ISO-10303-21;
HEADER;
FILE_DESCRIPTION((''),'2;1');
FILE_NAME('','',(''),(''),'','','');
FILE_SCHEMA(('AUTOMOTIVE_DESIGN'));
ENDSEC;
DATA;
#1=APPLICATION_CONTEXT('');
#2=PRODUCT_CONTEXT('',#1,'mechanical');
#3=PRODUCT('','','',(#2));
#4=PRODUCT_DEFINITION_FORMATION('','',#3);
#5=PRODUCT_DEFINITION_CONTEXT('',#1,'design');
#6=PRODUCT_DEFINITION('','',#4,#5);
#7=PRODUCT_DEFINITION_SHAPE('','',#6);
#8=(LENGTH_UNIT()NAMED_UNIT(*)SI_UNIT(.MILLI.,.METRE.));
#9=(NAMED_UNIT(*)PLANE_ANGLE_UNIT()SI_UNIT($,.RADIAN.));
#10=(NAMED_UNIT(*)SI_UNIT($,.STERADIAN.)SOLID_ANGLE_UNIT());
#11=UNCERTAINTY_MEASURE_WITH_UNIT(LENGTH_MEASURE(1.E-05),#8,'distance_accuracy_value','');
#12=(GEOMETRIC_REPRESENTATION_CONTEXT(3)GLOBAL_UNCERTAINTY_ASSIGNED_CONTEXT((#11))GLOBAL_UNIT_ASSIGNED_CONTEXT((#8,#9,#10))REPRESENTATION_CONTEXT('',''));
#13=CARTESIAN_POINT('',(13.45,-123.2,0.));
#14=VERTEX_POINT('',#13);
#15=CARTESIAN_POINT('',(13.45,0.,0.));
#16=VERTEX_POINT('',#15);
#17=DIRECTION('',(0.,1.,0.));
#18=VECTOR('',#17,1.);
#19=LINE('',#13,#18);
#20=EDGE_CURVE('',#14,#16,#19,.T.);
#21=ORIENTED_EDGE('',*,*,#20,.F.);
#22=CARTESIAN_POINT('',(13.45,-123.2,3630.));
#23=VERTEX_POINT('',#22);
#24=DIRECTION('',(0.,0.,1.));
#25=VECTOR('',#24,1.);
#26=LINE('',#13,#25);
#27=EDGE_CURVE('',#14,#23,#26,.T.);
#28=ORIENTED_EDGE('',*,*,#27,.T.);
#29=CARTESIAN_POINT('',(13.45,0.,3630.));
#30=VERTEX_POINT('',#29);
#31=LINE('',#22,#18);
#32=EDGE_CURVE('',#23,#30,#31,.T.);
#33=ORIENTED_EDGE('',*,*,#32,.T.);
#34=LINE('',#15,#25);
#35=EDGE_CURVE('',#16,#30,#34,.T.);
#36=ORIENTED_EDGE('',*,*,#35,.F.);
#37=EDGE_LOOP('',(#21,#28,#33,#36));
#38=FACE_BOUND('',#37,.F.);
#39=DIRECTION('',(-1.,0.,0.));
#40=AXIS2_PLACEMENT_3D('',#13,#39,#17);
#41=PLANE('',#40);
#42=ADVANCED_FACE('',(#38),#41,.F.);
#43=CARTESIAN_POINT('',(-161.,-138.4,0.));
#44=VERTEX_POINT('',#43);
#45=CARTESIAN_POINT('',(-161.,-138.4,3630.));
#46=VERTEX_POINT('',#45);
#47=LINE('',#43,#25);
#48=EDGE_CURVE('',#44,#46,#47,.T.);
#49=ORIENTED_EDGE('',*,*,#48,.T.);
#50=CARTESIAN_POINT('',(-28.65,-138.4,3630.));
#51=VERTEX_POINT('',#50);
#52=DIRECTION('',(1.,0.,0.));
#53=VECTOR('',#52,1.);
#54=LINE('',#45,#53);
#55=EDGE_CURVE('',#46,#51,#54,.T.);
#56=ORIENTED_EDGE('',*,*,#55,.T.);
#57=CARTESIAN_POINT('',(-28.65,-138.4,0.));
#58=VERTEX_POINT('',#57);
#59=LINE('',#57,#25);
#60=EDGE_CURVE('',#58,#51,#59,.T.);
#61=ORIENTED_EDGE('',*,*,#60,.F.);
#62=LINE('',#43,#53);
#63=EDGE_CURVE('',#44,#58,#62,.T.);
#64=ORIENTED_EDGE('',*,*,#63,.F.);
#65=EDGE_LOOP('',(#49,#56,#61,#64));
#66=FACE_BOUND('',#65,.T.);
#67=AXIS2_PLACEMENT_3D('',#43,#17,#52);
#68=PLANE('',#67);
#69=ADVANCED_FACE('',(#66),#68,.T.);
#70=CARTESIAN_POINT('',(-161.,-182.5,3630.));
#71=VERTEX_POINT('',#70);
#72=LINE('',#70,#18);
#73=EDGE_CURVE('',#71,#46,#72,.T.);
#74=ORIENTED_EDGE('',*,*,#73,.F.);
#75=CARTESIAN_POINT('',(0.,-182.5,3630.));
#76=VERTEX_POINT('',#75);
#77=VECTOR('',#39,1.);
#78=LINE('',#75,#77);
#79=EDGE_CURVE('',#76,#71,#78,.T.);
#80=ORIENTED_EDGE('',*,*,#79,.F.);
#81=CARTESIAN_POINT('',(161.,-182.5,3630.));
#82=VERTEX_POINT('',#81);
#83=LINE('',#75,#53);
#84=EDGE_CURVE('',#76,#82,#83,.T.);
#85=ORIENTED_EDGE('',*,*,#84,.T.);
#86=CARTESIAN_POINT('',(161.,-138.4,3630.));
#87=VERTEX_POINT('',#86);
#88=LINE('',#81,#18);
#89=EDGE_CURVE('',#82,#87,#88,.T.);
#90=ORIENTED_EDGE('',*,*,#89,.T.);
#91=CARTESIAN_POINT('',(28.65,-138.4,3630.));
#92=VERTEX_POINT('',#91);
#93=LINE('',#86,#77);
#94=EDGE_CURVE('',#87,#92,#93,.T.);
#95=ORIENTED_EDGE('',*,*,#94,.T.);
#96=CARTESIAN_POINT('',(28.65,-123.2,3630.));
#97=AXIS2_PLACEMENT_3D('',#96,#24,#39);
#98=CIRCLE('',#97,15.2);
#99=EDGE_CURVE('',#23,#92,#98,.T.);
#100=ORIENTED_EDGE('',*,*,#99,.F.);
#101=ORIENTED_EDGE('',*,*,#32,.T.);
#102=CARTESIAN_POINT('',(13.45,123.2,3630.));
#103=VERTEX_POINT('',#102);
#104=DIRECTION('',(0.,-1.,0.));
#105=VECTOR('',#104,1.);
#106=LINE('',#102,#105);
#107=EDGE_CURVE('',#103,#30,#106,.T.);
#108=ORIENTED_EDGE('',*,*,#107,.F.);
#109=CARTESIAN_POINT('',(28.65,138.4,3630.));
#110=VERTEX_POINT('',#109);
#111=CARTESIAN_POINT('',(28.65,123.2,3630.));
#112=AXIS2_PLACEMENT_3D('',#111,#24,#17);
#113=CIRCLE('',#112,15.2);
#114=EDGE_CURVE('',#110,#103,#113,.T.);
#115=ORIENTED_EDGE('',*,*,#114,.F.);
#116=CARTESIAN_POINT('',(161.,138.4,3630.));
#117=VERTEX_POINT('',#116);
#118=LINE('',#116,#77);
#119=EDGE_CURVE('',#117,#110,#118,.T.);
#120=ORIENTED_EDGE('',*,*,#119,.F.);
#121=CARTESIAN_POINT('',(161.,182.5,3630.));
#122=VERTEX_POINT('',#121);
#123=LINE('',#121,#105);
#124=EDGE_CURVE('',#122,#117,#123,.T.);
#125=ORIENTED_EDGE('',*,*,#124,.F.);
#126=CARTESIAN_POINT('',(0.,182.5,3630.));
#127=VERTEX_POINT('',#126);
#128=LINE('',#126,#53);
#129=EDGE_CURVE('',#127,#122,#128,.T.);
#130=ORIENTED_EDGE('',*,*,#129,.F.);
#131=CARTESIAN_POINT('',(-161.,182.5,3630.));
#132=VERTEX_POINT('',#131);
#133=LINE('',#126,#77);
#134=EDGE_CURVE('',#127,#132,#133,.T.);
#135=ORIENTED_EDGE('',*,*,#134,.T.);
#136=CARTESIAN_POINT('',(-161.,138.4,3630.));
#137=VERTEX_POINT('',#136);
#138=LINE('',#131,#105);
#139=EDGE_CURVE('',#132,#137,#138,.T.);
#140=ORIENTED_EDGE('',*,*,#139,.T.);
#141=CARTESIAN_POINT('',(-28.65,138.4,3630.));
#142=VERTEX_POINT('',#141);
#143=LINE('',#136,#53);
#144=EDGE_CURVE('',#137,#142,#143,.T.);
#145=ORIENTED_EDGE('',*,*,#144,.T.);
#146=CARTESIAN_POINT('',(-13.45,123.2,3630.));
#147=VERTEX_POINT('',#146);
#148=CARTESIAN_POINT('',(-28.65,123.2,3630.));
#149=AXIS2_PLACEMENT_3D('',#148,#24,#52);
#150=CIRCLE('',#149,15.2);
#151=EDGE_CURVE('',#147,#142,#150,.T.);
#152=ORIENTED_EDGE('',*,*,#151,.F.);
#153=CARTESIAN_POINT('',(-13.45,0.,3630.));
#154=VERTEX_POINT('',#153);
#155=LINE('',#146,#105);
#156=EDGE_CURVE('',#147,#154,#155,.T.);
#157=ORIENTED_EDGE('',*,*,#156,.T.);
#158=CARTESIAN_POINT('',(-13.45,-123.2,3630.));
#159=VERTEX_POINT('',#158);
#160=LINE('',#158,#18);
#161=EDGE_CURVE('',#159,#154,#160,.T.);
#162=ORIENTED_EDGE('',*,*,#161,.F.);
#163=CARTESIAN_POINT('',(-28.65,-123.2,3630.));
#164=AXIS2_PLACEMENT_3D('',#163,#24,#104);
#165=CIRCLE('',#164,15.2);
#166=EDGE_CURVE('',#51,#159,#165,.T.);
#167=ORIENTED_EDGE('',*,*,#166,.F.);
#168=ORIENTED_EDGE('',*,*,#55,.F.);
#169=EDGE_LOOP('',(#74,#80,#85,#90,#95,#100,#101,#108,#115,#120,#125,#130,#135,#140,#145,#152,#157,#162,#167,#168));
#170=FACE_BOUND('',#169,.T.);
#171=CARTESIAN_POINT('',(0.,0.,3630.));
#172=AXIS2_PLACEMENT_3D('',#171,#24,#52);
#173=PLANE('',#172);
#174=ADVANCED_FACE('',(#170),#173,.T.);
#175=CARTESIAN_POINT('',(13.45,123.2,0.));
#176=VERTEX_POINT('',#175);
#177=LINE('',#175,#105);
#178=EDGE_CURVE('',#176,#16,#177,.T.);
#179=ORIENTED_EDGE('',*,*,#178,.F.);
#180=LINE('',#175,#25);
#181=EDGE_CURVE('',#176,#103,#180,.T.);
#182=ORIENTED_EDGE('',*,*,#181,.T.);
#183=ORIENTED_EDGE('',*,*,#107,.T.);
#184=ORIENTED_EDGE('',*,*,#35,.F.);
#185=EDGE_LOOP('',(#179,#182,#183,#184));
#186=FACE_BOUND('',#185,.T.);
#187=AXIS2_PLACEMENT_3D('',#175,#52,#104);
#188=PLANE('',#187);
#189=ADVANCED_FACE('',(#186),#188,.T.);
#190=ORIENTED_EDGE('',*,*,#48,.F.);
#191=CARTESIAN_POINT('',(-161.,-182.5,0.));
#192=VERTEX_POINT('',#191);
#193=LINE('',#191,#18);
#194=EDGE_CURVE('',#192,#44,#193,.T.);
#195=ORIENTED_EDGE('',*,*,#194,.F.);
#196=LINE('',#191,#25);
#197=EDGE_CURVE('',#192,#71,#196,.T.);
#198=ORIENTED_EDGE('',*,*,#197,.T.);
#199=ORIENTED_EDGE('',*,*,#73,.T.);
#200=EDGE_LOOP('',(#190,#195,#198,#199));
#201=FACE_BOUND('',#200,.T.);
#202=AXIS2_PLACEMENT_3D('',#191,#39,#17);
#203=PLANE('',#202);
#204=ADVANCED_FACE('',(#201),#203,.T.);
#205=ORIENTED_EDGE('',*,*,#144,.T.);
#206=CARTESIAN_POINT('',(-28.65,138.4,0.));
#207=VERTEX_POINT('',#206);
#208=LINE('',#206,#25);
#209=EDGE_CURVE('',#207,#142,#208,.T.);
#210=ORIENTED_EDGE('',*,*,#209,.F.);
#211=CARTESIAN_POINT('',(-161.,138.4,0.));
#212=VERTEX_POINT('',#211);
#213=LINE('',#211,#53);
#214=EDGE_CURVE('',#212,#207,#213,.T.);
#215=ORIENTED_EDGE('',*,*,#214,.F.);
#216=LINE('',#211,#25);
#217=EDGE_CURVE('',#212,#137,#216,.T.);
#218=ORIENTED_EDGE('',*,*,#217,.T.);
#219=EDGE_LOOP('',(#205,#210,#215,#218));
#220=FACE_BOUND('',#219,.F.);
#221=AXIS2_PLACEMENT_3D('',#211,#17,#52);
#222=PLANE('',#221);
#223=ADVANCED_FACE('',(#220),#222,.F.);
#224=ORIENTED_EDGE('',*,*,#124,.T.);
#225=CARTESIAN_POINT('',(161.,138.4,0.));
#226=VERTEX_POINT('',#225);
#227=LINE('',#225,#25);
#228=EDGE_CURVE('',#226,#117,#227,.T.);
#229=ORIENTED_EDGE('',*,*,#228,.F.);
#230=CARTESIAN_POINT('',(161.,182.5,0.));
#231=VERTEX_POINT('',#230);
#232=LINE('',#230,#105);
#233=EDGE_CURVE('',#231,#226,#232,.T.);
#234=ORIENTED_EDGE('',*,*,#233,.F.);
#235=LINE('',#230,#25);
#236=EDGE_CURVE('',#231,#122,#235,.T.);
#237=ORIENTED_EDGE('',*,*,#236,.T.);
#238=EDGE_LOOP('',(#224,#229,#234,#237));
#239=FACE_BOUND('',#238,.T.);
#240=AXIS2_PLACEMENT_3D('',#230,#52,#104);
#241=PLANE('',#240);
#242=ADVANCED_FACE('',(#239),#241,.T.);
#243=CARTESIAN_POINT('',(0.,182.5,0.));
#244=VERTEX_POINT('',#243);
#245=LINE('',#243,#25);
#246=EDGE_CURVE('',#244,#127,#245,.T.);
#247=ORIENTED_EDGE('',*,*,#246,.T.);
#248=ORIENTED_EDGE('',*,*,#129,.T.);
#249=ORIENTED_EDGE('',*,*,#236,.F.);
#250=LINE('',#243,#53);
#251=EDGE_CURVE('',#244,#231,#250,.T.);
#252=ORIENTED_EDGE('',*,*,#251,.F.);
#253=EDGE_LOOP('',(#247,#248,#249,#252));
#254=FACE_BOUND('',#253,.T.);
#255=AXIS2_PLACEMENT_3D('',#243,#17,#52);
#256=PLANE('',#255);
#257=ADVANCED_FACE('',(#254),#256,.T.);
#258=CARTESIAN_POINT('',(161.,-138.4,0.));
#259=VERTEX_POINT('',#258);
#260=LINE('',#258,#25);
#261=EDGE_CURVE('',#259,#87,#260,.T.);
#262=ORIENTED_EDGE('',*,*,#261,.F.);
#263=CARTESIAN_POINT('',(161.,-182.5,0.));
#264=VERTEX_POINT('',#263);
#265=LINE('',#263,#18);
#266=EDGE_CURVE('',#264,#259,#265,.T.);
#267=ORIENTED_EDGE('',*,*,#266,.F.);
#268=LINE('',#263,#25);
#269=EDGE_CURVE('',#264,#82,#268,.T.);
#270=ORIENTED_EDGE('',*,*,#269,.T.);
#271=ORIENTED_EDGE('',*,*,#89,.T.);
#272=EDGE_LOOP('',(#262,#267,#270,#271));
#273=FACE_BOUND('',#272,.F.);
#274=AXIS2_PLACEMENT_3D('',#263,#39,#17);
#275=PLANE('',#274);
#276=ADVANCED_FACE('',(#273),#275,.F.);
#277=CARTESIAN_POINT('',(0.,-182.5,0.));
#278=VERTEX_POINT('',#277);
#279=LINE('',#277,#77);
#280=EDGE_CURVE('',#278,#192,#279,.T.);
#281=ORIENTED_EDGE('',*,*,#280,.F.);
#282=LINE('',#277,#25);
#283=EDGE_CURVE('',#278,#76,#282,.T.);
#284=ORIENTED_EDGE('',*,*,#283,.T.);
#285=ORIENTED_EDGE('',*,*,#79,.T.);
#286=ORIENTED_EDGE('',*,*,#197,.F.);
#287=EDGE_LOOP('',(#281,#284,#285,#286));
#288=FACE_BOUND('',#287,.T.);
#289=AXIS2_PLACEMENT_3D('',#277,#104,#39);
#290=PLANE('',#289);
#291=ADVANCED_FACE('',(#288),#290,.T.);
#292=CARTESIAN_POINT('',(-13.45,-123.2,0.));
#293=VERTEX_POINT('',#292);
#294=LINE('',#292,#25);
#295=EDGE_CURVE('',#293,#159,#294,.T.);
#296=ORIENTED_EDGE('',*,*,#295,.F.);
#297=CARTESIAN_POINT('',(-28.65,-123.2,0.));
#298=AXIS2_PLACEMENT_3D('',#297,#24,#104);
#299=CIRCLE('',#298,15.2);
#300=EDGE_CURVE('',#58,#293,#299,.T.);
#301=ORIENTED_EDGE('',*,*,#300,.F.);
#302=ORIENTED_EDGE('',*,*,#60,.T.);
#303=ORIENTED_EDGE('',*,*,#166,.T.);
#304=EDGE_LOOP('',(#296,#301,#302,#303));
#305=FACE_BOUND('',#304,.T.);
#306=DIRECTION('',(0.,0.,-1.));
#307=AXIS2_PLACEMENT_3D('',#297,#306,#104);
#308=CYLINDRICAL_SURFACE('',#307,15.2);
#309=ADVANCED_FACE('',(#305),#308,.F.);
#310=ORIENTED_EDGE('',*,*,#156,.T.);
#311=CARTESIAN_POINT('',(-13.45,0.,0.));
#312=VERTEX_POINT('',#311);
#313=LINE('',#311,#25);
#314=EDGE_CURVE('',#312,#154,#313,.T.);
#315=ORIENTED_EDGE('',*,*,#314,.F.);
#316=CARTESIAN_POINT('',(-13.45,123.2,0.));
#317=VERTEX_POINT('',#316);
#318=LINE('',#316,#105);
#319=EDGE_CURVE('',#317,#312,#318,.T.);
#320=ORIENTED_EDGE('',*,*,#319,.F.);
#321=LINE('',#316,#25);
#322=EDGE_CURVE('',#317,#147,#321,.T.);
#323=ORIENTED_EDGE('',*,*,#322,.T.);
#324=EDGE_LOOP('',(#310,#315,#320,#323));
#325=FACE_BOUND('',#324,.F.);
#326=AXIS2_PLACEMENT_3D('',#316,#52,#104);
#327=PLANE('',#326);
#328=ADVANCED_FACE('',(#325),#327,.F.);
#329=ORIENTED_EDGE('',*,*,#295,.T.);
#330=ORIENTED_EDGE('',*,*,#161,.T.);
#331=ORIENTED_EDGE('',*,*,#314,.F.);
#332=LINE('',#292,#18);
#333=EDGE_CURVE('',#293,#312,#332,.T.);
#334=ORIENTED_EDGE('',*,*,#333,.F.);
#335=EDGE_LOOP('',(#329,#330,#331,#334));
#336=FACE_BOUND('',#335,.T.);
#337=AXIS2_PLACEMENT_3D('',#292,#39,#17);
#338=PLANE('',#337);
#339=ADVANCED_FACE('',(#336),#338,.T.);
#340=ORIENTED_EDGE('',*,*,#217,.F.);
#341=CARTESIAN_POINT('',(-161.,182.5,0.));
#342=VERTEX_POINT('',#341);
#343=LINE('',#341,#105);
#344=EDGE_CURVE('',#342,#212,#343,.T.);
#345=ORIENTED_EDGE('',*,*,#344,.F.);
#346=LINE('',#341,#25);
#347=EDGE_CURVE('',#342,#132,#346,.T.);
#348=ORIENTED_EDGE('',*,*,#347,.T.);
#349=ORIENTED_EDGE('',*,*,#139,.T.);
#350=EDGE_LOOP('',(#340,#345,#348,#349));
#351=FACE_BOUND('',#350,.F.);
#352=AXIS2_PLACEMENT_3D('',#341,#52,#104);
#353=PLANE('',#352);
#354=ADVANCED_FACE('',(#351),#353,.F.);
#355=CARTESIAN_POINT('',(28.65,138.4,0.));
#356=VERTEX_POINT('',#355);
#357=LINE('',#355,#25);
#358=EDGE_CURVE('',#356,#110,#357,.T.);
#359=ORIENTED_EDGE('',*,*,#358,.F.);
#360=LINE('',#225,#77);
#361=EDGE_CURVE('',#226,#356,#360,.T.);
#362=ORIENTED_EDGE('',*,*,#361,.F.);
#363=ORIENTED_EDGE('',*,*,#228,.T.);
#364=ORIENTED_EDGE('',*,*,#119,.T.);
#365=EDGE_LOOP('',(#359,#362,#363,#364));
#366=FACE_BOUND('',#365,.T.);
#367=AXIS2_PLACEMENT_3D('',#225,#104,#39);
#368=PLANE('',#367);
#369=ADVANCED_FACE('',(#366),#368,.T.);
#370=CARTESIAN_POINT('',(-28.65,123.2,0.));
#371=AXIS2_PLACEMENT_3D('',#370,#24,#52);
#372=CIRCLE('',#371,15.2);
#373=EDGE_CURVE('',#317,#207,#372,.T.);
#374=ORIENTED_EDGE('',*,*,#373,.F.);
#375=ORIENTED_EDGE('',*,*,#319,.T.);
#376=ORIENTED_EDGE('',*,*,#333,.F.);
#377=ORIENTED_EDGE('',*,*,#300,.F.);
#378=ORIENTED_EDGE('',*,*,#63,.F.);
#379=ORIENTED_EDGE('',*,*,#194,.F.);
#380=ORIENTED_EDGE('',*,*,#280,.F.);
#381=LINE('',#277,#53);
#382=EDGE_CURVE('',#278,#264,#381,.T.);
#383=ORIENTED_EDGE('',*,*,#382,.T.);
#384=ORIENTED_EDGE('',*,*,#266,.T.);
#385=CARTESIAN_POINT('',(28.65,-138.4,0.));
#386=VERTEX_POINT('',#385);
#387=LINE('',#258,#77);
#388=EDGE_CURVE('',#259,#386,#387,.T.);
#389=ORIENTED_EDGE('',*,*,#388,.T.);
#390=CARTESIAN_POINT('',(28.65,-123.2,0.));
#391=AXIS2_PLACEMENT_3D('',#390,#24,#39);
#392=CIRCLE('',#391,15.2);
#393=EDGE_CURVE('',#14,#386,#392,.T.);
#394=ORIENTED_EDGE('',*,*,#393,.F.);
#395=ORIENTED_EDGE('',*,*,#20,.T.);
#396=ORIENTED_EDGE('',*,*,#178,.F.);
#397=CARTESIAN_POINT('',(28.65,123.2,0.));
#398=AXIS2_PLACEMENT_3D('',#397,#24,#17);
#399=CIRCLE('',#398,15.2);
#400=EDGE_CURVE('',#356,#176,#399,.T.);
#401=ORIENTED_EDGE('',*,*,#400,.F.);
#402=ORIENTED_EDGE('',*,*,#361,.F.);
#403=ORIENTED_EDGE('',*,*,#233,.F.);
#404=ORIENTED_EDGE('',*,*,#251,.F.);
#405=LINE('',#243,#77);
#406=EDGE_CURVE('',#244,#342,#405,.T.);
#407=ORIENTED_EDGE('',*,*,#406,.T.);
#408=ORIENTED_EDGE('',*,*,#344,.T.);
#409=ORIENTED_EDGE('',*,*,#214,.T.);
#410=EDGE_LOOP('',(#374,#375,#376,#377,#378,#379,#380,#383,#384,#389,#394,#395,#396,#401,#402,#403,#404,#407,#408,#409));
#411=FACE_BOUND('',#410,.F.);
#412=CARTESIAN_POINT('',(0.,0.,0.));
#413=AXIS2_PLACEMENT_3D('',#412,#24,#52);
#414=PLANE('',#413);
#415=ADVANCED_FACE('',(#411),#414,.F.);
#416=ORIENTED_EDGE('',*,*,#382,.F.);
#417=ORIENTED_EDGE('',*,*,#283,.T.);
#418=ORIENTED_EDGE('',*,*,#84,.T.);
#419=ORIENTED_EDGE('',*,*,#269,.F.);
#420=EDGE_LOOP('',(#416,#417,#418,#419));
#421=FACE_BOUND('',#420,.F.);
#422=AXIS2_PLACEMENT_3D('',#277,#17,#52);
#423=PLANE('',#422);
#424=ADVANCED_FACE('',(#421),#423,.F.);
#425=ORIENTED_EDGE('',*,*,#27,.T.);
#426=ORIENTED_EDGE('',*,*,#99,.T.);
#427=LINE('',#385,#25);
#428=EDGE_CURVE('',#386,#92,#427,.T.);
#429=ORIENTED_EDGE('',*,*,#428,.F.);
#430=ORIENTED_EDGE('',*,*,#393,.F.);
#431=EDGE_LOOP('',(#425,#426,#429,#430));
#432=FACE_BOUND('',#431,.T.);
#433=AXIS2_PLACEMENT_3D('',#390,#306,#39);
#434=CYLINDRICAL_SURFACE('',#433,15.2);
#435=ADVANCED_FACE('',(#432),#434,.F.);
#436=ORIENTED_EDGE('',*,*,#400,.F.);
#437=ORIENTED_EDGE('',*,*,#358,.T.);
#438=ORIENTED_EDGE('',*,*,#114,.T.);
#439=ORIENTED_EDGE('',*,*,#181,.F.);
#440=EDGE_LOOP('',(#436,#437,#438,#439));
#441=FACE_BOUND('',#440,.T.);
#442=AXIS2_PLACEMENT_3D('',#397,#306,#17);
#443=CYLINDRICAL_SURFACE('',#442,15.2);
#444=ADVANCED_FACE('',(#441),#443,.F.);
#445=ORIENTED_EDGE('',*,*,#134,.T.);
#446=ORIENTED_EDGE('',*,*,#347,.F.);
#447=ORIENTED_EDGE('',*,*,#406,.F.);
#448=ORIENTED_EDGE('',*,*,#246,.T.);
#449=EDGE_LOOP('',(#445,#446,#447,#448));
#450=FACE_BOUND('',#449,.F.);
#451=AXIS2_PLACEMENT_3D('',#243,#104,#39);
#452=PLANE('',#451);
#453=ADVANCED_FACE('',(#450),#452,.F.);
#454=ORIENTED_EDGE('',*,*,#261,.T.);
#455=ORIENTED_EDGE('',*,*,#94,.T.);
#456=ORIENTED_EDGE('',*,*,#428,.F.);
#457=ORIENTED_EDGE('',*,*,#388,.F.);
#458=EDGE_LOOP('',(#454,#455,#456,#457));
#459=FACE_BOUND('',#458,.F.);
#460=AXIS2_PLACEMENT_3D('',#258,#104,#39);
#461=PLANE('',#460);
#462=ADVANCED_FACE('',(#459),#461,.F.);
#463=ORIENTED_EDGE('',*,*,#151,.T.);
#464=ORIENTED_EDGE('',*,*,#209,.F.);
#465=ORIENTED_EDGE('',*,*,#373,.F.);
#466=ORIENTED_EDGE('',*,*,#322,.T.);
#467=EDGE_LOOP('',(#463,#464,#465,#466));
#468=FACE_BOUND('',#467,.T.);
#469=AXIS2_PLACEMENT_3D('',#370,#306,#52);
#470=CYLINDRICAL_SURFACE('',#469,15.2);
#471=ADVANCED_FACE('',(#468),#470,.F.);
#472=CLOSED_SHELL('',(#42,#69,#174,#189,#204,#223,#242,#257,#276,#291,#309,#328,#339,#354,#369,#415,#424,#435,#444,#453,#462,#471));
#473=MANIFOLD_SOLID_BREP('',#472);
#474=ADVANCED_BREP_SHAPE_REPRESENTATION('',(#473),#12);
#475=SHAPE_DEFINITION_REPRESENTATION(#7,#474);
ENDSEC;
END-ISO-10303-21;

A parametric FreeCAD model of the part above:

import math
import FreeCAD as App
import Part
import Sketcher

V = App.Vector
Q = App.Units.Quantity

doc = App.newDocument("Part")
params = doc.addObject("Spreadsheet::Sheet", "Params")
for row, (alias, value) in enumerate([
    ("sketch1_radius", "15.2 mm"),
    ("sketch1_height", "44.1 mm"),
    ("pad1_length", "3630 mm"),
], start=1):
    params.set(f"A{row}", alias)
    params.set(f"B{row}", "=" + value)
    params.setAlias(f"B{row}", alias)

body = doc.addObject("PartDesign::Body", "Body")

# Sketch on XY plane
sketch1 = body.newObject("Sketcher::SketchObject", "Sketch")
sketch1.AttachmentSupport = (doc.getObject("XY_Plane"), [""])
sketch1.MapMode = "FlatFace"
sketch1.addGeometry(Part.LineSegment(V(-161, -138, 0), V(-161, -182, 0)), False)
sketch1.addGeometry(Part.LineSegment(V(-161, -182, 0), V(161, -182, 0)), False)
sketch1.addGeometry(Part.LineSegment(V(161, -182, 0), V(161, -138, 0)), False)
sketch1.addGeometry(Part.LineSegment(V(161, -138, 0), V(29, -138, 0)), False)
sketch1.addGeometry(Part.ArcOfCircle(Part.Circle(V(29, -123, 0), V(0, 0, 1), 15), math.radians(180), math.radians(270)), False)
sketch1.addGeometry(Part.LineSegment(V(13, -123, 0), V(13, 123, 0)), False)
sketch1.addGeometry(Part.ArcOfCircle(Part.Circle(V(29, 123, 0), V(0, 0, 1), 15), math.radians(90), math.radians(180)), False)
sketch1.addGeometry(Part.LineSegment(V(29, 138, 0), V(161, 138, 0)), False)
sketch1.addGeometry(Part.LineSegment(V(161, 138, 0), V(161, 182, 0)), False)
sketch1.addGeometry(Part.LineSegment(V(161, 182, 0), V(-161, 182, 0)), False)
sketch1.addGeometry(Part.LineSegment(V(-161, 182, 0), V(-161, 138, 0)), False)
sketch1.addGeometry(Part.LineSegment(V(-161, 138, 0), V(-29, 138, 0)), False)
sketch1.addGeometry(Part.ArcOfCircle(Part.Circle(V(-29, 123, 0), V(0, 0, 1), 15), math.radians(0), math.radians(90)), False)
sketch1.addGeometry(Part.LineSegment(V(-13, 123, 0), V(-13, -123, 0)), False)
sketch1.addGeometry(Part.ArcOfCircle(Part.Circle(V(-29, -123, 0), V(0, 0, 1), 15), math.radians(-90), math.radians(0)), False)
sketch1.addGeometry(Part.LineSegment(V(-29, -138, 0), V(-161, -138, 0)), False)
sketch1.addConstraint(Sketcher.Constraint("Coincident", 0, 2, 1, 1))
sketch1.addConstraint(Sketcher.Constraint("Coincident", 1, 2, 2, 1))
sketch1.addConstraint(Sketcher.Constraint("Coincident", 2, 2, 3, 1))
sketch1.addConstraint(Sketcher.Constraint("Tangent", 3, 2, 4, 2))
sketch1.addConstraint(Sketcher.Constraint("Tangent", 4, 1, 5, 1))
sketch1.addConstraint(Sketcher.Constraint("Tangent", 5, 2, 6, 2))
sketch1.addConstraint(Sketcher.Constraint("Tangent", 6, 1, 7, 1))
sketch1.addConstraint(Sketcher.Constraint("Coincident", 7, 2, 8, 1))
sketch1.addConstraint(Sketcher.Constraint("Coincident", 8, 2, 9, 1))
sketch1.addConstraint(Sketcher.Constraint("Coincident", 9, 2, 10, 1))
sketch1.addConstraint(Sketcher.Constraint("Coincident", 10, 2, 11, 1))
sketch1.addConstraint(Sketcher.Constraint("Tangent", 11, 2, 12, 2))
sketch1.addConstraint(Sketcher.Constraint("Tangent", 12, 1, 13, 1))
sketch1.addConstraint(Sketcher.Constraint("Tangent", 13, 2, 14, 2))
sketch1.addConstraint(Sketcher.Constraint("Tangent", 14, 1, 15, 1))
sketch1.addConstraint(Sketcher.Constraint("Coincident", 15, 2, 0, 1))
sketch1.addConstraint(Sketcher.Constraint("Vertical", 0))
sketch1.addConstraint(Sketcher.Constraint("Horizontal", 1))
sketch1.addConstraint(Sketcher.Constraint("Vertical", 2))
sketch1.addConstraint(Sketcher.Constraint("Horizontal", 3))
sketch1.addConstraint(Sketcher.Constraint("Vertical", 5))
sketch1.addConstraint(Sketcher.Constraint("Horizontal", 7))
sketch1.addConstraint(Sketcher.Constraint("Vertical", 8))
sketch1.addConstraint(Sketcher.Constraint("Horizontal", 9))
sketch1.addConstraint(Sketcher.Constraint("Vertical", 10))
sketch1.addConstraint(Sketcher.Constraint("Horizontal", 11))
sketch1.addConstraint(Sketcher.Constraint("Vertical", 13))
sketch1.addConstraint(Sketcher.Constraint("Horizontal", 15))
sketch1.addConstraint(Sketcher.Constraint("Equal", 4, 6))
sketch1.addConstraint(Sketcher.Constraint("Equal", 6, 12))
sketch1.addConstraint(Sketcher.Constraint("Equal", 12, 14))
sketch1.addConstraint(Sketcher.Constraint("Symmetric", 4, 3, 12, 3, -1, 1))
sketch1.addConstraint(Sketcher.Constraint("Symmetric", 0, 2, 8, 2, -1, 1))
sketch1.addConstraint(Sketcher.Constraint("Symmetric", 7, 2, 10, 2, -2))
sketch1.addConstraint(Sketcher.Constraint("Symmetric", 2, 2, 15, 2, -2))
sketch1.addConstraint(Sketcher.Constraint("Radius", 4, Q("15.2 mm")))
sketch1.addConstraint(Sketcher.Constraint("DistanceY", 0, 2, 0, 1, Q("44.1 mm")))
sketch1.addConstraint(Sketcher.Constraint("DistanceX", 0, 2, -1, 1, Q("161 mm")))
sketch1.addConstraint(Sketcher.Constraint("DistanceY", 0, 2, -1, 1, Q("182.5 mm")))
sketch1.addConstraint(Sketcher.Constraint("DistanceX", -1, 1, 4, 1, Q("13.45 mm")))
sketch1.setExpression("Constraints[35]", "Params.sketch1_radius")
sketch1.setExpression("Constraints[36]", "Params.sketch1_height")
pad1 = body.newObject("PartDesign::Pad", "Pad")
pad1.Profile = sketch1
pad1.setExpression("Length", "Params.pad1_length")

doc.recompute()
